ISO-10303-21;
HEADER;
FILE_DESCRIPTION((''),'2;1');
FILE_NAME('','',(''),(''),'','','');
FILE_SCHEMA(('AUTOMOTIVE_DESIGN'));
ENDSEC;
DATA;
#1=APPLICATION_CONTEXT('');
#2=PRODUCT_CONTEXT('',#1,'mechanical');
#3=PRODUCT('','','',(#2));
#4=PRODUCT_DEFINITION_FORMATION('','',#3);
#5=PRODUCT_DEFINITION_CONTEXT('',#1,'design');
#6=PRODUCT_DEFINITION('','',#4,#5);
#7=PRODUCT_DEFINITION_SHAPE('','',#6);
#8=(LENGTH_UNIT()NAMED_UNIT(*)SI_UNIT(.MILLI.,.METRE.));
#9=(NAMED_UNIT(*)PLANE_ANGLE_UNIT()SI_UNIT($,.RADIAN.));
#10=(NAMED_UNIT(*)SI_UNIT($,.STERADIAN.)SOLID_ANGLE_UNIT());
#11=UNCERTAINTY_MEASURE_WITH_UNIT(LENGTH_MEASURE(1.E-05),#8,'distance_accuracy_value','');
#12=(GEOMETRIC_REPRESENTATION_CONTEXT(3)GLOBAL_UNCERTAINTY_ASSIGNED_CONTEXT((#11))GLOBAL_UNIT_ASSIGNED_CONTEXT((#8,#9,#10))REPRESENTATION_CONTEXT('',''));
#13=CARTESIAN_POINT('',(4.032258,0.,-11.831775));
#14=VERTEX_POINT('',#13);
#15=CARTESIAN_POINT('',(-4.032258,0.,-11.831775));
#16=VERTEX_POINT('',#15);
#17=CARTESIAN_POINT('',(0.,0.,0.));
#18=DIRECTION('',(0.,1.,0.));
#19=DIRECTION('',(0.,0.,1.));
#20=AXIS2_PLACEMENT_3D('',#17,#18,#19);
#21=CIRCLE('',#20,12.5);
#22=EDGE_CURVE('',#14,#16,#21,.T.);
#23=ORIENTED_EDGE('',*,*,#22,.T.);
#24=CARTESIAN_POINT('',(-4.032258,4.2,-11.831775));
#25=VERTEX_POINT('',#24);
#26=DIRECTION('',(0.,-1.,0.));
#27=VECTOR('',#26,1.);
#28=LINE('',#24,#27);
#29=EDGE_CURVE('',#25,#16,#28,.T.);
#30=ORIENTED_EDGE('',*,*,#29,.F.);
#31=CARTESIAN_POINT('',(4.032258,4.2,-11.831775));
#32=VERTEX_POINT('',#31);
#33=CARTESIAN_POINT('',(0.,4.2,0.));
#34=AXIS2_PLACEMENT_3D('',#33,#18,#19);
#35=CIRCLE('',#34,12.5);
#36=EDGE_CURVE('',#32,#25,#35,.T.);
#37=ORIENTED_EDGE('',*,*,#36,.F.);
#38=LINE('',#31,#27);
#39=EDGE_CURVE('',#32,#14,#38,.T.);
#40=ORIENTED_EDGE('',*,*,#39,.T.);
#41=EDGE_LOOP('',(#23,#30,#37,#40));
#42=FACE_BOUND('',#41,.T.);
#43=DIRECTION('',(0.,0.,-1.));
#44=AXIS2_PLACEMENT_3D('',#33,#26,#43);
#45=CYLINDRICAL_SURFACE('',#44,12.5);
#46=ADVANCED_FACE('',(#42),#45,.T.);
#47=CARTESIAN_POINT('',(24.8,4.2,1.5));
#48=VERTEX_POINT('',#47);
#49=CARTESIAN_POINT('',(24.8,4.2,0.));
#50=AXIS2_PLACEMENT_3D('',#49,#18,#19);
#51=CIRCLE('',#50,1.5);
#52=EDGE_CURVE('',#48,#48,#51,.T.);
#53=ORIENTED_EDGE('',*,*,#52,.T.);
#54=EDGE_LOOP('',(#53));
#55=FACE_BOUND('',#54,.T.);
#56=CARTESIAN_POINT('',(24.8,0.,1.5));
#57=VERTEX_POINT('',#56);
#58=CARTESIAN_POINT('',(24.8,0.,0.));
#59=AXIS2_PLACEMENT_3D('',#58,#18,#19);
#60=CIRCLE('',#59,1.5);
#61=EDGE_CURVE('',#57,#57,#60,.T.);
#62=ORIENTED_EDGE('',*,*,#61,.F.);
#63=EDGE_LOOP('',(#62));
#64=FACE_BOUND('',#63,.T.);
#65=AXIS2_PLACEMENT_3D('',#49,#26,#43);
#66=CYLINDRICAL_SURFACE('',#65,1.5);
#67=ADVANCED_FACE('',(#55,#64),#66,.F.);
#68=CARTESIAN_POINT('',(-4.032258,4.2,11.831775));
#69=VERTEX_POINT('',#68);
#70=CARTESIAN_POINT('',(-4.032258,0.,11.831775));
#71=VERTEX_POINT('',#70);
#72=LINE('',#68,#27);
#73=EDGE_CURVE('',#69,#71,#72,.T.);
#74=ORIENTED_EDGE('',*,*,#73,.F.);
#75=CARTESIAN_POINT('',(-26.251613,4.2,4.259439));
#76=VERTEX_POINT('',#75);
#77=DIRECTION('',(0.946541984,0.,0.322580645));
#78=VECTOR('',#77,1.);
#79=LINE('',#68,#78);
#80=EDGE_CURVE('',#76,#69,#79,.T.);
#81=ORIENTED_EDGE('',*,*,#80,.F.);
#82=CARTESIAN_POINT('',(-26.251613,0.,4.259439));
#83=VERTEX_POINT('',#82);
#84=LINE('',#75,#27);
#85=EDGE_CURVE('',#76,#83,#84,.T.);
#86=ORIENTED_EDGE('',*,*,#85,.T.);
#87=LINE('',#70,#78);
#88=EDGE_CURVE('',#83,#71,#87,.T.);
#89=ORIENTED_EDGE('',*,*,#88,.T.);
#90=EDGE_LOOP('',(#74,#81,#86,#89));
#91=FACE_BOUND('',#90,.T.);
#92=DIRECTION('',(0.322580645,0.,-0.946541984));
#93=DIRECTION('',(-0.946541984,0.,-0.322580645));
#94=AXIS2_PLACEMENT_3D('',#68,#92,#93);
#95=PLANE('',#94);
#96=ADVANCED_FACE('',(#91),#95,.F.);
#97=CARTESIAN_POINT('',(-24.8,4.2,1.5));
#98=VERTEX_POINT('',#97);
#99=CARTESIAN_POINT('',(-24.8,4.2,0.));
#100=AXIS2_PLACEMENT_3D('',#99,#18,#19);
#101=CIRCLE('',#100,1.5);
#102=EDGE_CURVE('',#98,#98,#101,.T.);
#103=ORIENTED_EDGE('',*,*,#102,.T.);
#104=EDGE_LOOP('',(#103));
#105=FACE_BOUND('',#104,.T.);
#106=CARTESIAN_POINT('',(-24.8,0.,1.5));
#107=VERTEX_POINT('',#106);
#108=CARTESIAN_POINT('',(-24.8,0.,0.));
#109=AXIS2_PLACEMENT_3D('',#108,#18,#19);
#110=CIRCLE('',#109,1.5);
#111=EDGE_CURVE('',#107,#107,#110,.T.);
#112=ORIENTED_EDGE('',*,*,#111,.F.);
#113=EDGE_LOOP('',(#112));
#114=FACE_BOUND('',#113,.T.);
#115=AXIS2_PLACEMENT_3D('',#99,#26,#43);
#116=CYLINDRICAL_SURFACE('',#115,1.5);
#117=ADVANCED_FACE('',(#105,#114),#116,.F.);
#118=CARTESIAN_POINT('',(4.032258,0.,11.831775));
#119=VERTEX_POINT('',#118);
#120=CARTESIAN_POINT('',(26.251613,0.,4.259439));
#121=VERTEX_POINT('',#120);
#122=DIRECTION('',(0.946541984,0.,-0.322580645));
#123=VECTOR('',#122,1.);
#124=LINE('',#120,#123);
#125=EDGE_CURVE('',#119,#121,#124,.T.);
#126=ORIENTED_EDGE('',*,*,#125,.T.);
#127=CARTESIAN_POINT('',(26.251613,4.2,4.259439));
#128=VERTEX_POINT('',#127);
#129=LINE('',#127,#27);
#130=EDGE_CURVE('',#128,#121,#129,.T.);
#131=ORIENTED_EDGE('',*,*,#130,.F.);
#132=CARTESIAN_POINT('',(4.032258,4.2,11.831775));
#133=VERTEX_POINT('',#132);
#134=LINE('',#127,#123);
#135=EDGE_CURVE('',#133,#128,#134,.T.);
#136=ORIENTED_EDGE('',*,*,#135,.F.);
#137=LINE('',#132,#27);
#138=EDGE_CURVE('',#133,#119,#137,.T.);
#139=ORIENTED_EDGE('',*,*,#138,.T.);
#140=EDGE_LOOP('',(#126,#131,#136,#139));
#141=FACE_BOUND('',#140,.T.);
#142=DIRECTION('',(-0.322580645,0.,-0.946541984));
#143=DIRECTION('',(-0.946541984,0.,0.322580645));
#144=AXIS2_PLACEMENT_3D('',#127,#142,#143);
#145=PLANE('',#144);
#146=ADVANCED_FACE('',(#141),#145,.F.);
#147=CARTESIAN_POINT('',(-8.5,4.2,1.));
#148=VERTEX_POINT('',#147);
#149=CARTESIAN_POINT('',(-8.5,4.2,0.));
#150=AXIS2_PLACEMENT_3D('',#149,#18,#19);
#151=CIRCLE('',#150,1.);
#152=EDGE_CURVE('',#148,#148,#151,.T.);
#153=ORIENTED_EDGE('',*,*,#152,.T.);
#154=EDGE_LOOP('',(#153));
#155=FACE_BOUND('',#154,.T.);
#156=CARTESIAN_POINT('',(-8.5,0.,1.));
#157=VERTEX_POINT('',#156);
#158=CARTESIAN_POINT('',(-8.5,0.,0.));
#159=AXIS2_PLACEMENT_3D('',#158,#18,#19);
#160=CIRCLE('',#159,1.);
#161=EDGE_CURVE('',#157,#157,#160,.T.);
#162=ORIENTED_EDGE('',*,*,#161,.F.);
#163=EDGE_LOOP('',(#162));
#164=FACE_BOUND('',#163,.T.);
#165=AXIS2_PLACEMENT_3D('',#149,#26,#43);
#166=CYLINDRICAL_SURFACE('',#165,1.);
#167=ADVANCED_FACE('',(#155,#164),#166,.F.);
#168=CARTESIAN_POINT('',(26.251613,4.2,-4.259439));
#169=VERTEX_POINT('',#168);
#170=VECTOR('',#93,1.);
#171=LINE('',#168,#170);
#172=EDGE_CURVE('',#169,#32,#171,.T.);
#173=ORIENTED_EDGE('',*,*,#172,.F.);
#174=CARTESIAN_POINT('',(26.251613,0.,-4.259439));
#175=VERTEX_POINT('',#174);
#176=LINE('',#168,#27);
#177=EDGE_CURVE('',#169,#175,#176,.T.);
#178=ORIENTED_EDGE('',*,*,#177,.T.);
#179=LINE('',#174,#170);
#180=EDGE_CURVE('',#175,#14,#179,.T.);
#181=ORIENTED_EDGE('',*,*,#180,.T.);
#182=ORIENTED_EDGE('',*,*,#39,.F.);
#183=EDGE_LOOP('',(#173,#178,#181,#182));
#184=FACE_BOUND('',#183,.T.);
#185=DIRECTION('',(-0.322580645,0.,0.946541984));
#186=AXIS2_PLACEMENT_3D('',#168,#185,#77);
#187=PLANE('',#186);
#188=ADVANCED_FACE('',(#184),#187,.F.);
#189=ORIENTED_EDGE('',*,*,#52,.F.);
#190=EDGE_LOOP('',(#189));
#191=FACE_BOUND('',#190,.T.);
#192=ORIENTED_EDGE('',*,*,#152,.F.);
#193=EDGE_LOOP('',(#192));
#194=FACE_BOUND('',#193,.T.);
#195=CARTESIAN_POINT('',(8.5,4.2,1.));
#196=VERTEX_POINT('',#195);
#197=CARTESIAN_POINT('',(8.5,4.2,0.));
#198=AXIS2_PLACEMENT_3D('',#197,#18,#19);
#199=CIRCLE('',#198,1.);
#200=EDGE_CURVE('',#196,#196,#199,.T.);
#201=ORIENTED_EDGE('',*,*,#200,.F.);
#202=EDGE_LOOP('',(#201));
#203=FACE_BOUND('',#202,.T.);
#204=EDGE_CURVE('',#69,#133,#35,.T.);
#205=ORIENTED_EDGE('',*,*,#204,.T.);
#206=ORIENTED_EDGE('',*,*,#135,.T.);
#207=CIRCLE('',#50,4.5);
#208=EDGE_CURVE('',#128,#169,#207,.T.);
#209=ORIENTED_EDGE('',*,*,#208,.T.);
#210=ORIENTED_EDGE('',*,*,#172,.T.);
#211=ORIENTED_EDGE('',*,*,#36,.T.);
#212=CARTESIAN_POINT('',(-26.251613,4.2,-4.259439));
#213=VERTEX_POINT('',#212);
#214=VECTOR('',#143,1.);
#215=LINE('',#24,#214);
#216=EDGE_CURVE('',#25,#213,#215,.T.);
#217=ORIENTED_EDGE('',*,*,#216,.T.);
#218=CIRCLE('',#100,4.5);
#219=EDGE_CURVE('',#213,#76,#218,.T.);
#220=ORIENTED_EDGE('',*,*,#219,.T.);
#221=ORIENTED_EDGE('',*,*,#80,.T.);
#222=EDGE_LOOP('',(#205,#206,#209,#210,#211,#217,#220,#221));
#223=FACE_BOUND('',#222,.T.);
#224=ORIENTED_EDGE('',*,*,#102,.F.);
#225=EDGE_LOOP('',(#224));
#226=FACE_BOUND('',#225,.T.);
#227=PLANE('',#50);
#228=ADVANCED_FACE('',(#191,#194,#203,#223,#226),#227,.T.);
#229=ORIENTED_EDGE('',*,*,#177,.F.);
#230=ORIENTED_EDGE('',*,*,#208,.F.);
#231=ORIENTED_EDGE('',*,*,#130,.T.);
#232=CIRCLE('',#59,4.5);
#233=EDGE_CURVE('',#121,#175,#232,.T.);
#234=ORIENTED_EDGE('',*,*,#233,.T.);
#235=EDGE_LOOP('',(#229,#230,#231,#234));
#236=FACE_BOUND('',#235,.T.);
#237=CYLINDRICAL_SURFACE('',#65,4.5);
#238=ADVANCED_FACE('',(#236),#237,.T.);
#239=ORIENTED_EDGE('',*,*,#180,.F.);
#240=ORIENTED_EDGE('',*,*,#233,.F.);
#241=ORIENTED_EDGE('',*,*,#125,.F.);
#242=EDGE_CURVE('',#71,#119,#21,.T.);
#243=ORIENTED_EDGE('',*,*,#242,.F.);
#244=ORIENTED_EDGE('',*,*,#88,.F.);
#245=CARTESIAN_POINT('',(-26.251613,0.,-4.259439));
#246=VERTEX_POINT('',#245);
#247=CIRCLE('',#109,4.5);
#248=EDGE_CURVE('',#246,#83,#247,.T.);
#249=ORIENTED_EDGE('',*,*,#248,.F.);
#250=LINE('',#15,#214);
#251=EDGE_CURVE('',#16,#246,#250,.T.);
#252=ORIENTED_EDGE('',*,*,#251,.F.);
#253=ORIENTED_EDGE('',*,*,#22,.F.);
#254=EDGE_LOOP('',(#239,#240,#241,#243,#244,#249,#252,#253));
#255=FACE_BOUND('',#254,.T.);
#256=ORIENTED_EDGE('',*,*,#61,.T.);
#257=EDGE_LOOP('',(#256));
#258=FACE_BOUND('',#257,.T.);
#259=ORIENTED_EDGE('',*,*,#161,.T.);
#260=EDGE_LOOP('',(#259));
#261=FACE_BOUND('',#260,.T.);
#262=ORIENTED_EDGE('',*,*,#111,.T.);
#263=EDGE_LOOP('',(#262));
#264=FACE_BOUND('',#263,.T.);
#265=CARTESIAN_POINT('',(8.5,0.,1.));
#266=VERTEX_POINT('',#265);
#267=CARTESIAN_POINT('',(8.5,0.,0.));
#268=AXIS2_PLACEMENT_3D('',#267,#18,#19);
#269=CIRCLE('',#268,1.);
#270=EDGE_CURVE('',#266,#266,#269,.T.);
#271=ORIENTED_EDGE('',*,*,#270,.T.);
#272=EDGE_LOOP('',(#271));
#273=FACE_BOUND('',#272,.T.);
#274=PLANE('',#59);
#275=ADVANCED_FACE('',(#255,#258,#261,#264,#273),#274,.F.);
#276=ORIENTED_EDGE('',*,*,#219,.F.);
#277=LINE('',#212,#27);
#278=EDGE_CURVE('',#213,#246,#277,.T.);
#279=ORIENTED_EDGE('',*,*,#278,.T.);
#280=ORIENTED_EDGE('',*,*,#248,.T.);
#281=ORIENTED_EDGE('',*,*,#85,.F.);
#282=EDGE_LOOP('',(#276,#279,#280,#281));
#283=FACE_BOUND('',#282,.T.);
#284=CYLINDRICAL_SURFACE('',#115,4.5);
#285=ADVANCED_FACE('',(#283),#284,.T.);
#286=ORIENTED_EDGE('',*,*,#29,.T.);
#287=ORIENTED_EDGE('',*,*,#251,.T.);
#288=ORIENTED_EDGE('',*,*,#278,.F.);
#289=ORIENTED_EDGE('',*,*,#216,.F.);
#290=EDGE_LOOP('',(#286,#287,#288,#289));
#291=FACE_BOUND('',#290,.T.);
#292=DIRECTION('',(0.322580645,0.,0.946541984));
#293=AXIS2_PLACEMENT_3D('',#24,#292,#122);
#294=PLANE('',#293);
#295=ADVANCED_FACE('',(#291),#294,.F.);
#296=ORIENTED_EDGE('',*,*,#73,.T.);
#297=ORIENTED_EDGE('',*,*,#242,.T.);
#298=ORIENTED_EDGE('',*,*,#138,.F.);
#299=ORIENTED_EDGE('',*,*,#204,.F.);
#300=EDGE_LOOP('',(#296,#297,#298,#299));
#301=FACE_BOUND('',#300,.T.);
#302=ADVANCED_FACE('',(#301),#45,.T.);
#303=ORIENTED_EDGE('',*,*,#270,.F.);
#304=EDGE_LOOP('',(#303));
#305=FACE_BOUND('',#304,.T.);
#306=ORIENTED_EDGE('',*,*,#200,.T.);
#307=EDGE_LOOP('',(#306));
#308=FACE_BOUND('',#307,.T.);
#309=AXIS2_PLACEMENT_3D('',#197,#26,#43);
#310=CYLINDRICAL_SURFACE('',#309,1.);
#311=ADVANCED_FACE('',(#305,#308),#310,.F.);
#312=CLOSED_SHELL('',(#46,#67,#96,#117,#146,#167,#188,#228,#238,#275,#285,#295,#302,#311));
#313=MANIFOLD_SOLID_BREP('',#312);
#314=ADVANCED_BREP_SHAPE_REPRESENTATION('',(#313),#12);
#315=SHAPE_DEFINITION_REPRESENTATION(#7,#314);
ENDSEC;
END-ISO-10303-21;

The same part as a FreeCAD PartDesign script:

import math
import FreeCAD as App
import Part
import Sketcher
Q = App.Units.Quantity

doc = App.newDocument("Part")
params = doc.addObject("Spreadsheet::Sheet", "Params")
for row, (alias, value) in enumerate([
    ("sketch1_diameter", "3 mm"),
    ("sketch1_diameter2", "2 mm"),
    ("sketch1_radius", "12.5 mm"),
    ("sketch1_radius2", "4.5 mm"),
    ("pad1_length", "4.2 mm"),
], start=1):
    params.set(f"A{row}", alias)
    params.set(f"B{row}", "=" + value)
    params.setAlias(f"B{row}", alias)

body = doc.addObject("PartDesign::Body", "Body")

# Sketch on XZ plane
sketch1 = body.newObject("Sketcher::SketchObject", "Sketch")
sketch1.AttachmentSupport = (doc.getObject("XZ_Plane"), [""])
sketch1.MapMode = "FlatFace"
sketch1.addGeometry([
    Part.LineSegment(App.Vector(26.3, -4.3, 0), App.Vector(4, -11.8, 0)),  # 0
    Part.ArcOfCircle(Part.Circle(App.Vector(0, 0, 0), App.Vector(0, 0, 1), 12.5), math.radians(-109), math.radians(-71)),  # 1
    Part.LineSegment(App.Vector(-4, -11.8, 0), App.Vector(-26.3, -4.3, 0)),  # 2
    Part.ArcOfCircle(Part.Circle(App.Vector(-24.8, 0, 0), App.Vector(0, 0, 1), 4.5), math.radians(109), math.radians(251)),  # 3
    Part.LineSegment(App.Vector(-26.3, 4.3, 0), App.Vector(-4, 11.8, 0)),  # 4
    Part.ArcOfCircle(Part.Circle(App.Vector(0, 0, 0), App.Vector(0, 0, 1), 12.5), math.radians(71), math.radians(109)),  # 5
    Part.LineSegment(App.Vector(4, 11.8, 0), App.Vector(26.3, 4.3, 0)),  # 6
    Part.ArcOfCircle(Part.Circle(App.Vector(24.8, 0, 0), App.Vector(0, 0, 1), 4.5), math.radians(-71), math.radians(71)),  # 7
    Part.Circle(App.Vector(-24.8, 0, 0), App.Vector(0, 0, 1), 1.5),  # 8
    Part.Circle(App.Vector(-8.5, 0, 0), App.Vector(0, 0, 1), 1),  # 9
    Part.Circle(App.Vector(8.5, 0, 0), App.Vector(0, 0, 1), 1),  # 10
    Part.Circle(App.Vector(24.8, 0, 0), App.Vector(0, 0, 1), 1.5),  # 11
], False)
sketch1.addConstraint([
    Sketcher.Constraint("Tangent", 0, 2, 1, 2),
    Sketcher.Constraint("Tangent", 1, 1, 2, 1),
    Sketcher.Constraint("Tangent", 2, 2, 3, 2),
    Sketcher.Constraint("Tangent", 3, 1, 4, 1),
    Sketcher.Constraint("Tangent", 4, 2, 5, 2),
    Sketcher.Constraint("Tangent", 5, 1, 6, 1),
    Sketcher.Constraint("Tangent", 6, 2, 7, 2),
    Sketcher.Constraint("Tangent", 7, 1, 0, 1),
    Sketcher.Constraint("Coincident", 1, 3, -1, 1),
    Sketcher.Constraint("Coincident", 5, 3, -1, 1),
    Sketcher.Constraint("Coincident", 8, 3, 3, 3),
    Sketcher.Constraint("Coincident", 11, 3, 7, 3),
    Sketcher.Constraint("Equal", 1, 5),
    Sketcher.Constraint("Equal", 3, 7),
    Sketcher.Constraint("Equal", 9, 10),
    Sketcher.Constraint("Equal", 8, 11),
    Sketcher.Constraint("Symmetric", 3, 3, 7, 3, -1, 1),
    Sketcher.Constraint("Symmetric", 9, 3, 10, 3, -1, 1),
    Sketcher.Constraint("PointOnObject", 3, 3, -1),
    Sketcher.Constraint("PointOnObject", 9, 3, -1),
    Sketcher.Constraint("Diameter", 8, Q("3 mm")),
    Sketcher.Constraint("Diameter", 9, Q("2 mm")),
    Sketcher.Constraint("Radius", 1, Q("12.5 mm")),
    Sketcher.Constraint("Radius", 3, Q("4.5 mm")),
    Sketcher.Constraint("DistanceX", 9, 3, 10, 3, Q("17 mm")),
    Sketcher.Constraint("DistanceX", 3, 3, -1, 1, Q("24.8 mm")),
])
sketch1.setExpression("Constraints[20]", "Params.sketch1_diameter")
sketch1.setExpression("Constraints[21]", "Params.sketch1_diameter2")
sketch1.setExpression("Constraints[22]", "Params.sketch1_radius")
sketch1.setExpression("Constraints[23]", "Params.sketch1_radius2")
pad1 = body.newObject("PartDesign::Pad", "Pad")
pad1.Profile = sketch1
pad1.setExpression("Length", "Params.pad1_length")
pad1.Reversed = True

doc.recompute()
